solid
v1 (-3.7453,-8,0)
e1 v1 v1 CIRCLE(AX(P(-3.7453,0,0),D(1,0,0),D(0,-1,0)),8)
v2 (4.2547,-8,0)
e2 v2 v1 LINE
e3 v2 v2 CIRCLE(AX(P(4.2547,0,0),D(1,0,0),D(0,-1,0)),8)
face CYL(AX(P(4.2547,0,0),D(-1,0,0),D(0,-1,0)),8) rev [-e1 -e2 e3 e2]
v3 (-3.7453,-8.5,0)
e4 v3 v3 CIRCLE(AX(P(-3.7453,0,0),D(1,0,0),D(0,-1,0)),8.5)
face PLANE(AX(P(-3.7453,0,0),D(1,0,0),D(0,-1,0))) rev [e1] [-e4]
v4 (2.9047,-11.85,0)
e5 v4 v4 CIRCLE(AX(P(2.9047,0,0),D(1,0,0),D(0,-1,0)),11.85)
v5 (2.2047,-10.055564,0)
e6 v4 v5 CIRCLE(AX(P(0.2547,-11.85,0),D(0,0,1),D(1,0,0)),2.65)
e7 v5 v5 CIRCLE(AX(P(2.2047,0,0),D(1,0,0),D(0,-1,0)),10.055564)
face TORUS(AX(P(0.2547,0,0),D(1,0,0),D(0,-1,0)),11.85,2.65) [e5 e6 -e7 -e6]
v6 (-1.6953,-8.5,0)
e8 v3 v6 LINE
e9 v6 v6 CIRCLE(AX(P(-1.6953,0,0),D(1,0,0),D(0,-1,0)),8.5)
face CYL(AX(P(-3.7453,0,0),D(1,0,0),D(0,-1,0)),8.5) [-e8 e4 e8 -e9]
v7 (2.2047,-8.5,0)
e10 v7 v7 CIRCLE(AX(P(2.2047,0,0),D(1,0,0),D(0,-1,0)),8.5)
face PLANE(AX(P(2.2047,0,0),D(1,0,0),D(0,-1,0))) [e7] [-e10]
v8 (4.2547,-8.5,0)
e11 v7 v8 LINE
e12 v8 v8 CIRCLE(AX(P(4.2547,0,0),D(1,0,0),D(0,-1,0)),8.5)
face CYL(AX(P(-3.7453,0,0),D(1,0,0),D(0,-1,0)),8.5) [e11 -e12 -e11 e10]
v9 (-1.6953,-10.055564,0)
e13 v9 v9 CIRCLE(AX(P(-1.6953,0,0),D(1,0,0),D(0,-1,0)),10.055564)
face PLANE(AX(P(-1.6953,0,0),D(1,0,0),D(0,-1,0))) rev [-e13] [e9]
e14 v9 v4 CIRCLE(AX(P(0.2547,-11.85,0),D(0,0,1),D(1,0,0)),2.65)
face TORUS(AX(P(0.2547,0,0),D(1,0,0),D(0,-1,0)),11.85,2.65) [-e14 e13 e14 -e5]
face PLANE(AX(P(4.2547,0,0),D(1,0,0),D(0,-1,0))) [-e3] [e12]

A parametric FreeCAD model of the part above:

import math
import FreeCAD as App
import Part
import Sketcher
from FreeCAD import Vector

doc = App.newDocument("Part")
params = doc.addObject("Spreadsheet::Sheet", "Params")
for row, (alias, value) in enumerate([
    ("sketch1_width", "8 mm"),
    ("sketch1_radius", "2.65 mm"),
    ("sketch1_width2", "2.05 mm"),
    ("sketch1_height", "0.5 mm"),
    ("revolution_angle", "360 deg"),
], start=1):
    params.set(f"A{row}", alias)
    params.set(f"B{row}", "=" + value)
    params.setAlias(f"B{row}", alias)

body = doc.addObject("PartDesign::Body", "Body")

# Sketch on XY plane
sketch1 = doc.addObject("Sketcher::SketchObject", "Sketch")
body.addObject(sketch1)
sketch1.AttachmentSupport = (doc.XY_Plane, [""])
sketch1.MapMode = "FlatFace"
sketch1.addGeometry(Part.LineSegment(Vector(4.3, -8.5, 0), Vector(4.3, -8, 0)), False)
sketch1.addGeometry(Part.LineSegment(Vector(4.3, -8, 0), Vector(-3.7, -8, 0)), False)
sketch1.addGeometry(Part.LineSegment(Vector(-3.7, -8, 0), Vector(-3.7, -8.5, 0)), False)
sketch1.addGeometry(Part.LineSegment(Vector(-3.7, -8.5, 0), Vector(-1.7, -8.5, 0)), False)
sketch1.addGeometry(Part.LineSegment(Vector(-1.7, -8.5, 0), Vector(-1.7, -10.1, 0)), False)
sketch1.addGeometry(Part.ArcOfCircle(Part.Circle(Vector(0.3, -11.8, 0), Vector(0, 0, 1), 2.6), math.radians(137), math.radians(403)), False)
sketch1.addGeometry(Part.LineSegment(Vector(2.2, -10.1, 0), Vector(2.2, -8.5, 0)), False)
sketch1.addGeometry(Part.LineSegment(Vector(2.2, -8.5, 0), Vector(4.3, -8.5, 0)), False)
sketch1.addConstraint(Sketcher.Constraint("Coincident", 0, 2, 1, 1))
sketch1.addConstraint(Sketcher.Constraint("Coincident", 1, 2, 2, 1))
sketch1.addConstraint(Sketcher.Constraint("Coincident", 2, 2, 3, 1))
sketch1.addConstraint(Sketcher.Constraint("Coincident", 3, 2, 4, 1))
sketch1.addConstraint(Sketcher.Constraint("Coincident", 4, 2, 5, 1))
sketch1.addConstraint(Sketcher.Constraint("Coincident", 5, 2, 6, 1))
sketch1.addConstraint(Sketcher.Constraint("Coincident", 6, 2, 7, 1))
sketch1.addConstraint(Sketcher.Constraint("Coincident", 7, 2, 0, 1))
sketch1.addConstraint(Sketcher.Constraint("Vertical", 0))
sketch1.addConstraint(Sketcher.Constraint("Horizontal", 1))
sketch1.addConstraint(Sketcher.Constraint("Vertical", 2))
sketch1.addConstraint(Sketcher.Constraint("Horizontal", 3))
sketch1.addConstraint(Sketcher.Constraint("Vertical", 4))
sketch1.addConstraint(Sketcher.Constraint("Vertical", 6))
sketch1.addConstraint(Sketcher.Constraint("Horizontal", 7))
sketch1.addConstraint(Sketcher.Constraint("Horizontal", 4, 2, 5, 2))
sketch1.addConstraint(Sketcher.Constraint("Horizontal", 3, 2, 6, 2))
sketch1.addConstraint(Sketcher.Constraint("Equal", 3, 7))
sketch1.addConstraint(Sketcher.Constraint("DistanceX", 1, 2, 1, 1, 8.0))
sketch1.addConstraint(Sketcher.Constraint("Radius", 5, 2.65))
sketch1.addConstraint(Sketcher.Constraint("DistanceY", 0, 2, -1, 1, 8.0))
sketch1.addConstraint(Sketcher.Constraint("DistanceX", 3, 1, 3, 2, 2.05))
sketch1.addConstraint(Sketcher.Constraint("DistanceY", 0, 1, 0, 2, 0.5))
sketch1.addConstraint(Sketcher.Constraint("DistanceY", 5, 3, -1, 1, 11.85))
sketch1.addConstraint(Sketcher.Constraint("DistanceX", -1, 1, 5, 3, 0.2547))
sketch1.setExpression("Constraints[18]", "Params.sketch1_width")
sketch1.setExpression("Constraints[19]", "Params.sketch1_radius")
sketch1.setExpression("Constraints[21]", "Params.sketch1_width2")
sketch1.setExpression("Constraints[22]", "Params.sketch1_height")
revolution = doc.addObject("PartDesign::Revolution", "Revolution")
body.addObject(revolution)
revolution.Profile = sketch1
revolution.ReferenceAxis = (sketch1, ["H_Axis"])
revolution.setExpression("Angle", "Params.revolution_angle")

doc.recompute()
